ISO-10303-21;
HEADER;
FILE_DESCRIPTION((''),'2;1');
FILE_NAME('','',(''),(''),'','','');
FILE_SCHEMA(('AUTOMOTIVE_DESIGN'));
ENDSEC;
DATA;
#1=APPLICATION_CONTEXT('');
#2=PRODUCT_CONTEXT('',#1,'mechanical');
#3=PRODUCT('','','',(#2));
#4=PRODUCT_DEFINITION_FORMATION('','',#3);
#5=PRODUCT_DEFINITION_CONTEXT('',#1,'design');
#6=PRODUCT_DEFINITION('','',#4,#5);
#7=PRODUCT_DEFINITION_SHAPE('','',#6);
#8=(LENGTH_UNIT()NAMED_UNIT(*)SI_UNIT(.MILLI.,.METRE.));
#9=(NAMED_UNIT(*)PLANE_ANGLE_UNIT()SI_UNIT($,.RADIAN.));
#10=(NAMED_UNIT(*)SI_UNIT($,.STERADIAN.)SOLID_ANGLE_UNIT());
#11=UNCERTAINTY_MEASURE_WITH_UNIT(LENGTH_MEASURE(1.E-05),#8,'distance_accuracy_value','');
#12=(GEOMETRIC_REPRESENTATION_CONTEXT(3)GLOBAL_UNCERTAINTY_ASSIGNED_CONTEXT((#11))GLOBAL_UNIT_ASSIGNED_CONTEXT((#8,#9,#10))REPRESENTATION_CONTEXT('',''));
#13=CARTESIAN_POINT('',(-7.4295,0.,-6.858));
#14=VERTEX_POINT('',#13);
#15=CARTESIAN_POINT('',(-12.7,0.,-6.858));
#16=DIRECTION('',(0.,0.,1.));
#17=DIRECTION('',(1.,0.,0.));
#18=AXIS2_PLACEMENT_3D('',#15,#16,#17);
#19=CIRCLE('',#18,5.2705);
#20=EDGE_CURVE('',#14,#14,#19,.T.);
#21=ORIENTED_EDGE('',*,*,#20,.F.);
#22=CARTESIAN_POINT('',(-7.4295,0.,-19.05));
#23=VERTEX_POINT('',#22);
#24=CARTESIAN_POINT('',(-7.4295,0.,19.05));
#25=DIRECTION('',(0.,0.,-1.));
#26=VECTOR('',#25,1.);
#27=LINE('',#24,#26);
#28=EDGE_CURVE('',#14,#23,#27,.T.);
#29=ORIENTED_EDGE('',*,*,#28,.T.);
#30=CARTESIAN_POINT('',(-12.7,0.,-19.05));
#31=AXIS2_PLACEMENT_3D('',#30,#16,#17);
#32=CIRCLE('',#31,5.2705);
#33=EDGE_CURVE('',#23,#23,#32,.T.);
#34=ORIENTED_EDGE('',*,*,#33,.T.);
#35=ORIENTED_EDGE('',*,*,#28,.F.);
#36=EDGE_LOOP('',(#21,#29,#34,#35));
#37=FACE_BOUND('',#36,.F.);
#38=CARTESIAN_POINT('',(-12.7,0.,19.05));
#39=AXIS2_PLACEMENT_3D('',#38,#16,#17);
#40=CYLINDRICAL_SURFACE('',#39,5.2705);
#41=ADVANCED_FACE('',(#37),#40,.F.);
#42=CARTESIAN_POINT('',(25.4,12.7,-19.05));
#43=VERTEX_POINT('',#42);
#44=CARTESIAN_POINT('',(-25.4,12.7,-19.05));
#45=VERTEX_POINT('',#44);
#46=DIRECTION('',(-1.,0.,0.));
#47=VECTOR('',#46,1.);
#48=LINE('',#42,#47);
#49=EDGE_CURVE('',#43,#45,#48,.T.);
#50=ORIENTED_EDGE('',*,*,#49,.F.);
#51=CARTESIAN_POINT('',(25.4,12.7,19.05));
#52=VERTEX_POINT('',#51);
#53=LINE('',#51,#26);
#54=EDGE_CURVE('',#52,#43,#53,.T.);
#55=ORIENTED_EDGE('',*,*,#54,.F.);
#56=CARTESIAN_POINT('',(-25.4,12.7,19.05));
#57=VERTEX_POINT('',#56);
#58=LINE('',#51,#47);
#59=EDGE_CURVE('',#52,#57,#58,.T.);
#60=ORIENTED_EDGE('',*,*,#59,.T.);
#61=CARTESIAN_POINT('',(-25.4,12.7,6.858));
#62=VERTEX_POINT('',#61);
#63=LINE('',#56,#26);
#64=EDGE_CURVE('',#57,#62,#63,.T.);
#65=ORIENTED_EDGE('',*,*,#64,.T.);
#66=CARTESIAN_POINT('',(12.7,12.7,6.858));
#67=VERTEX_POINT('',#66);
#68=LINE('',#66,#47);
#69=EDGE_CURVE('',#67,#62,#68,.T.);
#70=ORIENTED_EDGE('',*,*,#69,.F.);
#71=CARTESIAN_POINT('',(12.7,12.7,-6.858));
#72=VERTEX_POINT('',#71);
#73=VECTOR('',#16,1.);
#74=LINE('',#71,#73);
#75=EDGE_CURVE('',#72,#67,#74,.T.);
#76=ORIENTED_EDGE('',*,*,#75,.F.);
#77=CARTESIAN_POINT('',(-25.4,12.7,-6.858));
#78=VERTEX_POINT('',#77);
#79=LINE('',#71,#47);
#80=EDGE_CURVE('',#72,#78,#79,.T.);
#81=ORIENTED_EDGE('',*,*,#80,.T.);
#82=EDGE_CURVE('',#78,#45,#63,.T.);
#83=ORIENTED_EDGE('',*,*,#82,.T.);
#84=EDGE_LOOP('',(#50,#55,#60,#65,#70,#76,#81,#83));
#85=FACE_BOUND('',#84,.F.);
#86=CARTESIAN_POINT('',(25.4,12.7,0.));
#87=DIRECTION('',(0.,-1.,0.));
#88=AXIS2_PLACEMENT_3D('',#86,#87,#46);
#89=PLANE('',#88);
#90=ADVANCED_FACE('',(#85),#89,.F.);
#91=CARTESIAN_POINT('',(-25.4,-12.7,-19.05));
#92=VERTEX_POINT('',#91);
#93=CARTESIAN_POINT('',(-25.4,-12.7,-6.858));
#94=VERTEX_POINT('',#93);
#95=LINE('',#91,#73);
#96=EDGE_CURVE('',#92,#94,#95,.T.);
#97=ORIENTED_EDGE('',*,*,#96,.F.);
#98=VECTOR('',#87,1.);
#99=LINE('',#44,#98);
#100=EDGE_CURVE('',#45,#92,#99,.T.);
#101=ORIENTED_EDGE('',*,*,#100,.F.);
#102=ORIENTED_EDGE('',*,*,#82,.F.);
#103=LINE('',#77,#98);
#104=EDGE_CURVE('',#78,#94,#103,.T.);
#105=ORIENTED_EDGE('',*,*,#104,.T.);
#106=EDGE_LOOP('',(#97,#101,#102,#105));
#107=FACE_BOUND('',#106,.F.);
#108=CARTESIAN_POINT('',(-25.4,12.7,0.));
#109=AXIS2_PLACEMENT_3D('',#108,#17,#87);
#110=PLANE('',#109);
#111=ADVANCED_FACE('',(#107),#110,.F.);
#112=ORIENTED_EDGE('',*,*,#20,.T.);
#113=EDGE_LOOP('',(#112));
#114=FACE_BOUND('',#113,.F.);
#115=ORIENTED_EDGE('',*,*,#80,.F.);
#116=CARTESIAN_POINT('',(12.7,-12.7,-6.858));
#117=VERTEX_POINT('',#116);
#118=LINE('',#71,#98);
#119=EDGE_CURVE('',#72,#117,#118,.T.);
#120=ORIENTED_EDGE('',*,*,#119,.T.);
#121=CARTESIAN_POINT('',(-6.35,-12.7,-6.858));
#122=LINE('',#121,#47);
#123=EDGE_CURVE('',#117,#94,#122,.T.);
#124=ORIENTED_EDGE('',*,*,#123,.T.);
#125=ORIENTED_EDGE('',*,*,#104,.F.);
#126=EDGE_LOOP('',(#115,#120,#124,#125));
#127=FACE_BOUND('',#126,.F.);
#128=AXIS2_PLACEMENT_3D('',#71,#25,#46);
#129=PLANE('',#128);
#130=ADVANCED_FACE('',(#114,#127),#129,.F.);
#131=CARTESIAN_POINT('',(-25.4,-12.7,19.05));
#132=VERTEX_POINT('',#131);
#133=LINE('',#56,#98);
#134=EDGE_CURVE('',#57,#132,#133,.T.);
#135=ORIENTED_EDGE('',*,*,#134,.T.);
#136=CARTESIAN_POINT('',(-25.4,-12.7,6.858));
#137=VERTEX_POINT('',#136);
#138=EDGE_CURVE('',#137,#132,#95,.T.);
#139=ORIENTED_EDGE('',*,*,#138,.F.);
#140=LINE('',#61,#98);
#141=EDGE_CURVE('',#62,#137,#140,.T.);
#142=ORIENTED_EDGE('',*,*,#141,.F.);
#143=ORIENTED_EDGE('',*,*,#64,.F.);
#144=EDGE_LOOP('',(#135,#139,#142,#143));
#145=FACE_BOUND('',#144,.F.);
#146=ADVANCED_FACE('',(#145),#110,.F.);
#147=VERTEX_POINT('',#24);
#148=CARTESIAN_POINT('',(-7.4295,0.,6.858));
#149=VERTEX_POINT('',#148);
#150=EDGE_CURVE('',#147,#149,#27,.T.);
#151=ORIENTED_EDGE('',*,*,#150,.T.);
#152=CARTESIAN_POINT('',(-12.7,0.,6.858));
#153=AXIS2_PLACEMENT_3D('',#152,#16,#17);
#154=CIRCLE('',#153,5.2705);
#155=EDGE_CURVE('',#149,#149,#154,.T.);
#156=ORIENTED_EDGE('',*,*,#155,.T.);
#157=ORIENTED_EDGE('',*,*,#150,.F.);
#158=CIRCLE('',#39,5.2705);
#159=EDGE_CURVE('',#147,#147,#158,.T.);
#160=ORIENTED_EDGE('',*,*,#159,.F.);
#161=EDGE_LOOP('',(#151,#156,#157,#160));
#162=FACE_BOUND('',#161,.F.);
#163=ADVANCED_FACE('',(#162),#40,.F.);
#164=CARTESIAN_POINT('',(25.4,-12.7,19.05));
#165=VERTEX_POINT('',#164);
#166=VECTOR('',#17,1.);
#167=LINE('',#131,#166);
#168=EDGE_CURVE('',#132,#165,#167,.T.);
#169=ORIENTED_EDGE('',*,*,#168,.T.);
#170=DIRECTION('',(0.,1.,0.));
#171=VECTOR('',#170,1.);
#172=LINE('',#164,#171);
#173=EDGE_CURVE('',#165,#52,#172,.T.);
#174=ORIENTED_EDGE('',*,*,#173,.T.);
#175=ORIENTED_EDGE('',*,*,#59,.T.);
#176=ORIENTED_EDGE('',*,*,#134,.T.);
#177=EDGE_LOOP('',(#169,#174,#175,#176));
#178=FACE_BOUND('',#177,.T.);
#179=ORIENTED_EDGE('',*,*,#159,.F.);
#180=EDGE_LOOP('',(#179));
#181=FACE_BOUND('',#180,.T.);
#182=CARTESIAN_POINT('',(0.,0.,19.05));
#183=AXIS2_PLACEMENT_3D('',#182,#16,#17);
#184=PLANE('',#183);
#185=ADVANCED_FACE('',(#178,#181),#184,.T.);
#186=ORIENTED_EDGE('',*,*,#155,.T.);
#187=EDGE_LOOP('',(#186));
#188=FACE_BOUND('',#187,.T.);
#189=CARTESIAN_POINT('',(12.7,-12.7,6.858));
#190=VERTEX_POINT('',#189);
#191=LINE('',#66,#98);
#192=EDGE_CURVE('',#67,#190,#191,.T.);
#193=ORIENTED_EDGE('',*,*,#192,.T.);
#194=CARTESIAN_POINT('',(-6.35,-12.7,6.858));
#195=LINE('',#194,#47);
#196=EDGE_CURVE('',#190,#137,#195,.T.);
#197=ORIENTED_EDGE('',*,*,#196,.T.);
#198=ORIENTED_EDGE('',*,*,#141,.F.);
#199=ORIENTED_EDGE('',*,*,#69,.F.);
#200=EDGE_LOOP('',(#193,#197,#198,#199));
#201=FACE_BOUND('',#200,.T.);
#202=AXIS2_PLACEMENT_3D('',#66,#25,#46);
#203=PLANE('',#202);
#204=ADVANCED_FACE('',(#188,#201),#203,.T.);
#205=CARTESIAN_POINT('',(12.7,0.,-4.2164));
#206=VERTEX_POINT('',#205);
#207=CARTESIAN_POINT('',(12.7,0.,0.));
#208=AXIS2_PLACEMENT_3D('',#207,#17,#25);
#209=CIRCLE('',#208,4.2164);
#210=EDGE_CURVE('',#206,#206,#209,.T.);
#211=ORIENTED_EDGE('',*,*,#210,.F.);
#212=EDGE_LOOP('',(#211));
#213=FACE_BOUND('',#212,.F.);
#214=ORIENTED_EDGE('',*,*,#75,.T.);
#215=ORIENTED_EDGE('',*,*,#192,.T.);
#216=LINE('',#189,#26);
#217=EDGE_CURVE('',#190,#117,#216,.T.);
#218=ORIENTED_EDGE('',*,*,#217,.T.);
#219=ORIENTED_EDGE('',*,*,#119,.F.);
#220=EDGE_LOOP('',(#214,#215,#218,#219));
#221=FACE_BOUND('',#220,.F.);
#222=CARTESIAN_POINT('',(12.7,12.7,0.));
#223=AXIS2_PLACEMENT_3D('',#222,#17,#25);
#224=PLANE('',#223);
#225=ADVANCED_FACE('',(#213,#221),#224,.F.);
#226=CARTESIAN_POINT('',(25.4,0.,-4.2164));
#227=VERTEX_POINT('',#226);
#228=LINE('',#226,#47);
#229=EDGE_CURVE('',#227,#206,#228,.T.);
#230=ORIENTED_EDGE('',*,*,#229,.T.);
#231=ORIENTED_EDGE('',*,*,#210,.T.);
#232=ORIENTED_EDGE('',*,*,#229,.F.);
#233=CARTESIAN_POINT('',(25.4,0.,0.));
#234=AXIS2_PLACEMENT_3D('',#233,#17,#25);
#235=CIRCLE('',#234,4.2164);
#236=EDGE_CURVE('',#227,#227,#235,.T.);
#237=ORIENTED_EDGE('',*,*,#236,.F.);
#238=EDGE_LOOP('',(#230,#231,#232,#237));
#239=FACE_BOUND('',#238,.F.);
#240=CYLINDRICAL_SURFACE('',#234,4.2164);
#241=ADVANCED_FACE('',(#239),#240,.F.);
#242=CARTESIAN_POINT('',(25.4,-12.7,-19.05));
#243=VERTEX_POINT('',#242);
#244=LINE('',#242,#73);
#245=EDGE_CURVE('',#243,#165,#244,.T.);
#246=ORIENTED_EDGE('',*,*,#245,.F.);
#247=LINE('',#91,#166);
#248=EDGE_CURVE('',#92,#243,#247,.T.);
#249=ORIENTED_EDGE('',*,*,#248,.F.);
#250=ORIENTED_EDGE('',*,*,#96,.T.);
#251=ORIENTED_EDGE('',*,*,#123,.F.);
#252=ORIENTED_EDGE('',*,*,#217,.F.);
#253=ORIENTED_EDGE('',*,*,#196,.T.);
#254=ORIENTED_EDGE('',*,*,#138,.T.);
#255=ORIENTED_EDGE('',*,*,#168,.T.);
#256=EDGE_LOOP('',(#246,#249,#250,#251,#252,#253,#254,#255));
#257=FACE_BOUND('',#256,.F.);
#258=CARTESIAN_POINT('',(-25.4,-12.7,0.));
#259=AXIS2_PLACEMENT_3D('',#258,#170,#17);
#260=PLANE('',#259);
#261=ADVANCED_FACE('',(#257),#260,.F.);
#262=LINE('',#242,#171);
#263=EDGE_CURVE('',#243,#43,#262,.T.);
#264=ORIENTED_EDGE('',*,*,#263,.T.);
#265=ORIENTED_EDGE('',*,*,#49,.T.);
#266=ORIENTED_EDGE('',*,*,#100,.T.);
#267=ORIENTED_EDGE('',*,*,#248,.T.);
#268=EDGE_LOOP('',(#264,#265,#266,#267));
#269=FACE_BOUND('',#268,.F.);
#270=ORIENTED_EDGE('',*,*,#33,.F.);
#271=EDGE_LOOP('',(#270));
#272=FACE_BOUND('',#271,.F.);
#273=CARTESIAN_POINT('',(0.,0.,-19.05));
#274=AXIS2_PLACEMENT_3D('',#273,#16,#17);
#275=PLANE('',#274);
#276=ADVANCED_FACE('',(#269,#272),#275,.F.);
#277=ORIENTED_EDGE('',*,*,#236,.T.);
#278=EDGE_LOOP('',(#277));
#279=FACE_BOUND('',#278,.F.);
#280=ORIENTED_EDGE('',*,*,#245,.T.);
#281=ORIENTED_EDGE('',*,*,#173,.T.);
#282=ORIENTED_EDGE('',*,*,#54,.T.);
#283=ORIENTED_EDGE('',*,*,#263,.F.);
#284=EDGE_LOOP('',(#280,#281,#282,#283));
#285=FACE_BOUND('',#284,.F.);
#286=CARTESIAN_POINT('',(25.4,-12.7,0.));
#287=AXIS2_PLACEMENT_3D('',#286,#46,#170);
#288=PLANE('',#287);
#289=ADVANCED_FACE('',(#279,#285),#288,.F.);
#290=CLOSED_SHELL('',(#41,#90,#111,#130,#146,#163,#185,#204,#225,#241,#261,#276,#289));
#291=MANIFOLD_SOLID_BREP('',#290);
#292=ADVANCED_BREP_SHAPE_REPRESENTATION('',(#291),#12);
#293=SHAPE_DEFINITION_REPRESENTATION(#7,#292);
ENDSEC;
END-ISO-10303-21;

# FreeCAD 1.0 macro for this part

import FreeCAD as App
import Part
import Sketcher
Q = App.Units.Quantity


def add_polygon(sketch, points):
    """Adds a closed chain of lines whose ends are joined by coincident constraints."""
    first, n = sketch.GeometryCount, len(points)
    for a, b in zip(points, points[1:] + points[:1]):
        sketch.addGeometry(Part.LineSegment(App.Vector(*a, 0), App.Vector(*b, 0)), False)
    for i in range(n):
        sketch.addConstraint(Sketcher.Constraint("Coincident", first + i, 2, first + (i + 1) % n, 1))

doc = App.newDocument("Part")
params = doc.addObject("Spreadsheet::Sheet", "Params")
for row, (alias, value) in enumerate([
    ("sketch1_width", "2 in"),
    ("sketch1_height", "1 in"),
    ("pad1_length", "1.5 in"),
    ("sketch2_width", "1.5 in"),
    ("sketch2_height", "0.54 in"),
    ("sketch3_diameter", "0.415 in"),
    ("sketch4_diameter", "0.332 in"),
    ("pocket3_length", "0.5 in"),
], start=1):
    params.set(f"A{row}", alias)
    params.set(f"B{row}", "=" + value)
    params.setAlias(f"B{row}", alias)

body = doc.addObject("PartDesign::Body", "Body")

sketch1 = body.newObject("Sketcher::SketchObject", "Sketch")
sketch1.AttachmentSupport = (doc.getObject("XY_Plane"), [""])
sketch1.MapMode = "FlatFace"
add_polygon(sketch1, [(-25.4, 12.7), (-25.4, -12.7), (25.4, -12.7), (25.4, 12.7)])
sketch1.addConstraint([
    Sketcher.Constraint("Vertical", 0),
    Sketcher.Constraint("Horizontal", 1),
    Sketcher.Constraint("Vertical", 2),
    Sketcher.Constraint("Horizontal", 3),
    Sketcher.Constraint("Symmetric", 0, 2, 2, 2, -1, 1),
    Sketcher.Constraint("DistanceX", 1, 1, 1, 2, Q("2 in")),
    Sketcher.Constraint("DistanceY", 0, 2, 0, 1, Q("1 in")),
])
sketch1.setExpression("Constraints[9]", "Params.sketch1_width")
sketch1.setExpression("Constraints[10]", "Params.sketch1_height")
pad1 = body.newObject("PartDesign::Pad", "Pad")
pad1.Profile = sketch1
pad1.setExpression("Length", "Params.pad1_length")
pad1.Midplane = True

sketch2 = body.newObject("Sketcher::SketchObject", "Sketch001")
sketch2.AttachmentSupport = (doc.getObject("XZ_Plane"), [""])
sketch2.MapMode = "FlatFace"
sketch2.AttachmentOffset = App.Placement(App.Vector(0, 0, -0.5 * 25.4), App.Rotation())
add_polygon(sketch2, [(12.7, 6.858), (12.7, -6.858), (-25.4, -6.858), (-25.4, 6.858)])
sketch2.addConstraint([
    Sketcher.Constraint("Vertical", 0),
    Sketcher.Constraint("Horizontal", 1),
    Sketcher.Constraint("Vertical", 2),
    Sketcher.Constraint("Horizontal", 3),
    Sketcher.Constraint("DistanceX", 1, 2, 1, 1, Q("1.5 in")),
    Sketcher.Constraint("DistanceY", 0, 2, 0, 1, Q("0.54 in")),
    Sketcher.Constraint("DistanceX", 1, 2, -1, 1, Q("1 in")),
    Sketcher.Constraint("DistanceY", 0, 2, -1, 1, Q("0.27 in")),
])
sketch2.setExpression("Constraints[8]", "Params.sketch2_width")
sketch2.setExpression("Constraints[9]", "Params.sketch2_height")
pocket1 = body.newObject("PartDesign::Pocket", "Pocket")
pocket1.Profile = sketch2
pocket1.Type = "ThroughAll"
pocket1.Reversed = True

sketch3 = body.newObject("Sketcher::SketchObject", "Sketch002")
sketch3.AttachmentSupport = (doc.getObject("XY_Plane"), [""])
sketch3.MapMode = "FlatFace"
sketch3.AttachmentOffset = App.Placement(App.Vector(0, 0, 0.75 * 25.4), App.Rotation())
sketch3.addGeometry(Part.Circle(App.Vector(-12.7, 0, 0), App.Vector(0, 0, 1), 5.2705), False)
sketch3.addConstraint([
    Sketcher.Constraint("PointOnObject", 0, 3, -1),
    Sketcher.Constraint("Diameter", 0, Q("0.415 in")),
    Sketcher.Constraint("DistanceX", 0, 3, -1, 1, Q("0.5 in")),
])
sketch3.setExpression("Constraints[1]", "Params.sketch3_diameter")
pocket2 = body.newObject("PartDesign::Pocket", "Pocket001")
pocket2.Profile = sketch3
pocket2.Type = "ThroughAll"

sketch4 = body.newObject("Sketcher::SketchObject", "Sketch003")
sketch4.AttachmentSupport = (doc.getObject("YZ_Plane"), [""])
sketch4.MapMode = "FlatFace"
sketch4.AttachmentOffset = App.Placement(App.Vector(0, 0, 1 * 25.4), App.Rotation())
sketch4.addGeometry(Part.Circle(App.Vector(0, 0, 0), App.Vector(0, 0, 1), 4.2164), False)
sketch4.addConstraint([
    Sketcher.Constraint("Coincident", 0, 3, -1, 1),
    Sketcher.Constraint("Diameter", 0, Q("0.332 in")),
])
sketch4.setExpression("Constraints[1]", "Params.sketch4_diameter")
pocket3 = body.newObject("PartDesign::Pocket", "Pocket002")
pocket3.Profile = sketch4
pocket3.setExpression("Length", "Params.pocket3_length")

doc.recompute()
